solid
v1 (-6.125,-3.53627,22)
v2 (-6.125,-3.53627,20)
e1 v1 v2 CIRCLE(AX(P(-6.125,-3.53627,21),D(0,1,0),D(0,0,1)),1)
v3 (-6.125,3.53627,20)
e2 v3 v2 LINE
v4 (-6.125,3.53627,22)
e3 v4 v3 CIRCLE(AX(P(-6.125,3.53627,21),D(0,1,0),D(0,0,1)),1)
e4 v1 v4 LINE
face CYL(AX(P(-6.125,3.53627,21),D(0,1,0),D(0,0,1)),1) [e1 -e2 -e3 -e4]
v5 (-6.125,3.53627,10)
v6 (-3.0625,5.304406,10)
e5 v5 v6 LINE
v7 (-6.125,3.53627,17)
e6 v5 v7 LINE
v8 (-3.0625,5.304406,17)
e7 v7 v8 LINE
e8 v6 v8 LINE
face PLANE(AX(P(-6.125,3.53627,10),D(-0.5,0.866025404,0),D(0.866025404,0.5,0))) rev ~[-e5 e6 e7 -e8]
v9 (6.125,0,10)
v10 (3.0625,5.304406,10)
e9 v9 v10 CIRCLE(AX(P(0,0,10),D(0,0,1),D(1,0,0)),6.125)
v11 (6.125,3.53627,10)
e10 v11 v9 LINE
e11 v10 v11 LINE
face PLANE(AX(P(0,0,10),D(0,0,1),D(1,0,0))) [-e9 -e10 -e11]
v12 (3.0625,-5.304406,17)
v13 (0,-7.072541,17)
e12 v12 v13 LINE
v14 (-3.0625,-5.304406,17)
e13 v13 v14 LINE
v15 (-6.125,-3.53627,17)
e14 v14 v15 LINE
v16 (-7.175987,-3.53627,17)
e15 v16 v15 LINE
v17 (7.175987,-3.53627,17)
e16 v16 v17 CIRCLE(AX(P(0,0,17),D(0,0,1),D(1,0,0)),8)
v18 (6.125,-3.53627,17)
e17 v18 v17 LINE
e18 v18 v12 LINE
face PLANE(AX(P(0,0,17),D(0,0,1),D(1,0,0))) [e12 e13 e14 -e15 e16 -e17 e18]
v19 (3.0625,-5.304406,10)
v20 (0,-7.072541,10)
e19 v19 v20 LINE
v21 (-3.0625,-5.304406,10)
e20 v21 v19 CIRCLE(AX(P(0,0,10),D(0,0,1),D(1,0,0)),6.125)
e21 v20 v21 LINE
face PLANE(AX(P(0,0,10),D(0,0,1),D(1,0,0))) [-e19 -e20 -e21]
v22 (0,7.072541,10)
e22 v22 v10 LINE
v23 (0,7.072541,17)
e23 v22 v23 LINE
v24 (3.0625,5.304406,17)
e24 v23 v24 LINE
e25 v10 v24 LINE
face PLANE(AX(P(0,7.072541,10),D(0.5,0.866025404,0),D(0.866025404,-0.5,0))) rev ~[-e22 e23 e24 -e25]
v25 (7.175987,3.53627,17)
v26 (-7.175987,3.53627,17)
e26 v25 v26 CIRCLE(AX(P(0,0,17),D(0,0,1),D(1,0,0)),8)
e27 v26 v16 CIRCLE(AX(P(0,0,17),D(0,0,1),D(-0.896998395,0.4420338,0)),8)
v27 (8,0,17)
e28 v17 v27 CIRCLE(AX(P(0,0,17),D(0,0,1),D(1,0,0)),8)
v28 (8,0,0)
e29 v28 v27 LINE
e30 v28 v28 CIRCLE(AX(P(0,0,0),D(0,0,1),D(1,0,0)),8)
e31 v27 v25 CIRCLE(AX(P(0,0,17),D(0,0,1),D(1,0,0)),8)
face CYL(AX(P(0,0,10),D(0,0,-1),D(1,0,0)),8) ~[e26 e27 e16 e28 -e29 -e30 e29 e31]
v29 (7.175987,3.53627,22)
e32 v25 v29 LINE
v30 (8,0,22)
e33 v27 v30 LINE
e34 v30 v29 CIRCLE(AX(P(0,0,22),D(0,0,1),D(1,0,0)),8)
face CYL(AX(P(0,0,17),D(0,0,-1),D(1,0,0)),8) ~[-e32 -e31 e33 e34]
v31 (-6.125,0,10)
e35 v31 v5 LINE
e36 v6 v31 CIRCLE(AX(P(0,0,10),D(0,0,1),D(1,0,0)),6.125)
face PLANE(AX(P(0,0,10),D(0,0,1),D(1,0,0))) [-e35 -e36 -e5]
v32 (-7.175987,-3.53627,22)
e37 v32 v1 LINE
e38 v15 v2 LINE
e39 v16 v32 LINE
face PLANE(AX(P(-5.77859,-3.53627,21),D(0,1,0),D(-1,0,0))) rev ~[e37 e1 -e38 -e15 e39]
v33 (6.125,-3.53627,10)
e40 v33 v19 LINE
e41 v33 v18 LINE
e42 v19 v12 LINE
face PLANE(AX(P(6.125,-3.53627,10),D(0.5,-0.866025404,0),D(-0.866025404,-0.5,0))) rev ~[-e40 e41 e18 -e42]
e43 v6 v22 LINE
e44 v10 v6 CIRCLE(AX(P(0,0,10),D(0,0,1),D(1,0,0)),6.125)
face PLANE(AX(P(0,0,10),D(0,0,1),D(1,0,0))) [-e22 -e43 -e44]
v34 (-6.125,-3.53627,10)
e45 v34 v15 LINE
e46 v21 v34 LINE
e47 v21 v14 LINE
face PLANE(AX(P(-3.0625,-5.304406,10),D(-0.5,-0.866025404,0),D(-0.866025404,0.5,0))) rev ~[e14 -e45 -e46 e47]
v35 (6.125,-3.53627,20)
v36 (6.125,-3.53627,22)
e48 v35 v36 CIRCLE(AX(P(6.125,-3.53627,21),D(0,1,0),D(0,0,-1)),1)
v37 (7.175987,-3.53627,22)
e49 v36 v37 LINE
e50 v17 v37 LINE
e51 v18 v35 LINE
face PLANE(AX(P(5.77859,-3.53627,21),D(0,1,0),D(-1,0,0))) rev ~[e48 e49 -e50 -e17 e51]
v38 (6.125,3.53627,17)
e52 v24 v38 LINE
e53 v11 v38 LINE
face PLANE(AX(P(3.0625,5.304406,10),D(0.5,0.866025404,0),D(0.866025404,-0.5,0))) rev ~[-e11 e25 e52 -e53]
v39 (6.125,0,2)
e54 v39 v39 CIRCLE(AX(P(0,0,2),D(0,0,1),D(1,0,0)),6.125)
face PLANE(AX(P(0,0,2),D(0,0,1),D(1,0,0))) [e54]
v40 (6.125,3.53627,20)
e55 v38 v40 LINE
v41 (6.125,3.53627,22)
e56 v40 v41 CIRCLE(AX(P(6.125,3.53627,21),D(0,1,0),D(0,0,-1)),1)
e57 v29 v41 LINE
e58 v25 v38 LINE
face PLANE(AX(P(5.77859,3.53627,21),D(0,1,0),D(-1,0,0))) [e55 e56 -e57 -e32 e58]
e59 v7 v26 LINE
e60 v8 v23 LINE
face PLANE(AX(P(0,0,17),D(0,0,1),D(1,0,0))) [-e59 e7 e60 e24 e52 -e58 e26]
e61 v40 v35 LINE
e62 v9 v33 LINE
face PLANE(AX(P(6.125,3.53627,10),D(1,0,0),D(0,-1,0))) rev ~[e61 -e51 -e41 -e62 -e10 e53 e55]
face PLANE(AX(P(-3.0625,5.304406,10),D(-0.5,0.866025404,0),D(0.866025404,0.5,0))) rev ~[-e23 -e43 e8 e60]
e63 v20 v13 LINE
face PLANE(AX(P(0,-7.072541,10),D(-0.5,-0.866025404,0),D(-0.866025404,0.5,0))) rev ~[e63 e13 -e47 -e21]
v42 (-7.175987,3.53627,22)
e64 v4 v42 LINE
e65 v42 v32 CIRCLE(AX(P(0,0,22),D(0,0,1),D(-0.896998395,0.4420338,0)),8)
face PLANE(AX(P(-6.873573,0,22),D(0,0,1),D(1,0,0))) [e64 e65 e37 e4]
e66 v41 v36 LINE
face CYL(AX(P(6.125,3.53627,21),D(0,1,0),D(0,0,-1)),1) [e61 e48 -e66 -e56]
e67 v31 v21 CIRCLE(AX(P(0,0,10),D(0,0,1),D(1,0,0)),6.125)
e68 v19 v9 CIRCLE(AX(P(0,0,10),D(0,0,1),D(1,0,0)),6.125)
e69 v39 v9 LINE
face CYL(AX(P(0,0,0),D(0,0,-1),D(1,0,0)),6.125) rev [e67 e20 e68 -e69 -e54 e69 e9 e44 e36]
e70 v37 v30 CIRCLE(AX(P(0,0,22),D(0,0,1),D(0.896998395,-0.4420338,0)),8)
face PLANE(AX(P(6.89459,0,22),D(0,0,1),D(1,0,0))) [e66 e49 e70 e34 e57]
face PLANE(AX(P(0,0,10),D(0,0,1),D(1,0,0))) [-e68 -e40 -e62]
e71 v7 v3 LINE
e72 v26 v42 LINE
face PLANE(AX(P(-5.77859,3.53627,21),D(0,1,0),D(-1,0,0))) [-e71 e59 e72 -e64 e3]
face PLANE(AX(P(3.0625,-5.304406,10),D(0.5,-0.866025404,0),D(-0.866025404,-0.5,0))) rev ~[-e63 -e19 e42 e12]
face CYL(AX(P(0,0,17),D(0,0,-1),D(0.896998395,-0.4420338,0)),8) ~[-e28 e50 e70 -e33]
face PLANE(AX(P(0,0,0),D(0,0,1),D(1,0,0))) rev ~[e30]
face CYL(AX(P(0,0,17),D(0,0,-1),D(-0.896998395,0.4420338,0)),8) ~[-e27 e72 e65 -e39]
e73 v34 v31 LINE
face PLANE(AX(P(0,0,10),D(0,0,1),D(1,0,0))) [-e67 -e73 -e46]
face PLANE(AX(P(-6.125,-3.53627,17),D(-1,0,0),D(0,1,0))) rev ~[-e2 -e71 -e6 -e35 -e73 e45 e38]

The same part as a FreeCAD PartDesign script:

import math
import FreeCAD as App
import Part
import Sketcher
Q = App.Units.Quantity

doc = App.newDocument("Part")
body = doc.addObject("PartDesign::Body", "Body")

# Sketch on XY plane
sketch1 = body.newObject("Sketcher::SketchObject", "Sketch")
sketch1.AttachmentSupport = (doc.getObject("XY_Plane"), [""])
sketch1.MapMode = "FlatFace"
sketch1.addGeometry(Part.Circle(App.Vector(0, 0, 0), App.Vector(0, 0, 1), 6), False)
sketch1.addConstraint([
    Sketcher.Constraint("Coincident", 0, 3, -1, 1),
    Sketcher.Constraint("Diameter", 0, 12.25),
])
pad1 = body.newObject("PartDesign::Pad", "Pad")
pad1.Profile = sketch1
pad1.Length = 2

# Sketch on XY plane
sketch2 = body.newObject("Sketcher::SketchObject", "Sketch001")
sketch2.AttachmentSupport = (doc.getObject("XY_Plane"), [""])
sketch2.MapMode = "FlatFace"
sketch2.addGeometry([
    Part.Circle(App.Vector(0, 0, 0), App.Vector(0, 0, 1), 8),
    Part.Circle(App.Vector(0, 0, 0), App.Vector(0, 0, 1), 6),
], False)
sketch2.addConstraint([
    Sketcher.Constraint("Coincident", 0, 3, -1, 1),
    Sketcher.Constraint("Coincident", 1, 3, -1, 1),
    Sketcher.Constraint("Diameter", 0, 16.0),
    Sketcher.Constraint("Diameter", 1, 12.25),
])
pad2 = body.newObject("PartDesign::Pad", "Pad001")
pad2.Profile = sketch2
pad2.Length = 10

# Sketch on XY plane
sketch3 = body.newObject("Sketcher::SketchObject", "Sketch002")
sketch3.AttachmentSupport = (doc.getObject("XY_Plane"), [""])
sketch3.MapMode = "FlatFace"
sketch3.AttachmentOffset = App.Placement(App.Vector(0, 0, 10), App.Rotation())
sketch3.addGeometry([
    Part.Circle(App.Vector(0, 0, 0), App.Vector(0, 0, 1), 8),  # 0
    Part.LineSegment(App.Vector(0, 7.1, 0), App.Vector(3.1, 5.3, 0)),  # 1
    Part.LineSegment(App.Vector(3.1, 5.3, 0), App.Vector(6.1, 3.5, 0)),  # 2
    Part.LineSegment(App.Vector(6.1, 3.5, 0), App.Vector(6.1, -3.5, 0)),  # 3
    Part.LineSegment(App.Vector(6.1, -3.5, 0), App.Vector(3.1, -5.3, 0)),  # 4
    Part.LineSegment(App.Vector(3.1, -5.3, 0), App.Vector(0, -7.1, 0)),  # 5
    Part.LineSegment(App.Vector(0, -7.1, 0), App.Vector(-3.1, -5.3, 0)),  # 6
    Part.LineSegment(App.Vector(-3.1, -5.3, 0), App.Vector(-6.1, -3.5, 0)),  # 7
    Part.LineSegment(App.Vector(-6.1, -3.5, 0), App.Vector(-6.1, 3.5, 0)),  # 8
    Part.LineSegment(App.Vector(-6.1, 3.5, 0), App.Vector(-3.1, 5.3, 0)),  # 9
    Part.LineSegment(App.Vector(-3.1, 5.3, 0), App.Vector(0, 7.1, 0)),  # 10
], False)
sketch3.addConstraint([
    Sketcher.Constraint("Coincident", 1, 2, 2, 1),
    Sketcher.Constraint("Coincident", 2, 2, 3, 1),
    Sketcher.Constraint("Coincident", 3, 2, 4, 1),
    Sketcher.Constraint("Coincident", 4, 2, 5, 1),
    Sketcher.Constraint("Coincident", 5, 2, 6, 1),
    Sketcher.Constraint("Coincident", 6, 2, 7, 1),
    Sketcher.Constraint("Coincident", 7, 2, 8, 1),
    Sketcher.Constraint("Coincident", 8, 2, 9, 1),
    Sketcher.Constraint("Coincident", 9, 2, 10, 1),
    Sketcher.Constraint("Coincident", 10, 2, 1, 1),
    Sketcher.Constraint("Vertical", 3),
    Sketcher.Constraint("Vertical", 8),
    Sketcher.Constraint("Coincident", 0, 3, -1, 1),
    Sketcher.Constraint("Symmetric", 1, 2, 6, 2, -1, 1),
    Sketcher.Constraint("Symmetric", 2, 2, 7, 2, -1, 1),
    Sketcher.Constraint("Symmetric", 4, 2, 9, 2, -1, 1),
    Sketcher.Constraint("Symmetric", 5, 2, 10, 2, -1, 1),
    Sketcher.Constraint("Symmetric", 4, 2, 6, 2, -2),
    Sketcher.Constraint("PointOnObject", 5, 2, -2),
    Sketcher.Constraint("Parallel", 1, 2),
    Sketcher.Constraint("Parallel", 4, 5),
    Sketcher.Constraint("Parallel", 5, 9),
    Sketcher.Constraint("Equal", 1, 2),
    Sketcher.Constraint("Diameter", 0, 16.0),
    Sketcher.Constraint("Angle", 1, Q("-30 deg")),
    Sketcher.Constraint("DistanceX", 7, 2, 3, 2, 12.25),
    Sketcher.Constraint("DistanceY", 3, 2, 3, 1, 7.072541),
])
pad3 = body.newObject("PartDesign::Pad", "Pad002")
pad3.Profile = sketch3
pad3.Length = 7

# Sketch on XY plane
sketch4 = body.newObject("Sketcher::SketchObject", "Sketch003")
sketch4.AttachmentSupport = (doc.getObject("XY_Plane"), [""])
sketch4.MapMode = "FlatFace"
sketch4.AttachmentOffset = App.Placement(App.Vector(0, 0, 17), App.Rotation())
sketch4.addGeometry([
    Part.LineSegment(App.Vector(-6.1, -3.5, 0), App.Vector(-6.1, 3.5, 0)),  # 0
    Part.LineSegment(App.Vector(-6.1, 3.5, 0), App.Vector(-7.2, 3.5, 0)),  # 1
    Part.ArcOfCircle(Part.Circle(App.Vector(0, 0, 0), App.Vector(0, 0, 1), 8), math.radians(154), math.radians(206)),  # 2
    Part.LineSegment(App.Vector(-7.2, -3.5, 0), App.Vector(-6.1, -3.5, 0)),  # 3
    Part.ArcOfCircle(Part.Circle(App.Vector(0, 0, 0), App.Vector(0, 0, 1), 8), math.radians(0), math.radians(26)),  # 4
    Part.LineSegment(App.Vector(7.2, 3.5, 0), App.Vector(6.1, 3.5, 0)),  # 5
    Part.LineSegment(App.Vector(6.1, 3.5, 0), App.Vector(6.1, -3.5, 0)),  # 6
    Part.LineSegment(App.Vector(6.1, -3.5, 0), App.Vector(7.2, -3.5, 0)),  # 7
    Part.ArcOfCircle(Part.Circle(App.Vector(0, 0, 0), App.Vector(0, 0, 1), 8), math.radians(-26), math.radians(0)),  # 8
], False)
sketch4.addConstraint([
    Sketcher.Constraint("Coincident", 0, 2, 1, 1),
    Sketcher.Constraint("Coincident", 1, 2, 2, 1),
    Sketcher.Constraint("Coincident", 2, 2, 3, 1),
    Sketcher.Constraint("Coincident", 3, 2, 0, 1),
    Sketcher.Constraint("Coincident", 4, 2, 5, 1),
    Sketcher.Constraint("Coincident", 5, 2, 6, 1),
    Sketcher.Constraint("Coincident", 6, 2, 7, 1),
    Sketcher.Constraint("Coincident", 7, 2, 8, 1),
    Sketcher.Constraint("Tangent", 8, 2, 4, 1),
    Sketcher.Constraint("Vertical", 0),
    Sketcher.Constraint("Horizontal", 1),
    Sketcher.Constraint("Horizontal", 3),
    Sketcher.Constraint("Horizontal", 5),
    Sketcher.Constraint("Vertical", 6),
    Sketcher.Constraint("Horizontal", 7),
    Sketcher.Constraint("Coincident", 2, 3, -1, 1),
    Sketcher.Constraint("Coincident", 4, 3, -1, 1),
    Sketcher.Constraint("Equal", 2, 4),
    Sketcher.Constraint("Equal", 4, 8),
    Sketcher.Constraint("Symmetric", 3, 2, 5, 2, -1, 1),
    Sketcher.Constraint("PointOnObject", 8, 2, -1),
    Sketcher.Constraint("Horizontal", 1, 2, 4, 2),
    Sketcher.Constraint("Horizontal", 3, 2, 6, 2),
    Sketcher.Constraint("Radius", 2, 8.0),
    Sketcher.Constraint("DistanceX", 0, 2, 5, 2, 12.25),
    Sketcher.Constraint("DistanceY", 0, 1, 0, 2, 7.072541),
])
pad4 = body.newObject("PartDesign::Pad", "Pad003")
pad4.Profile = sketch4
pad4.Length = 5

# Sketch on XZ plane
sketch5 = body.newObject("Sketcher::SketchObject", "Sketch004")
sketch5.AttachmentSupport = (doc.getObject("XZ_Plane"), [""])
sketch5.MapMode = "FlatFace"
sketch5.AttachmentOffset = App.Placement(App.Vector(0, 0, -3.53627), App.Rotation())
sketch5.addGeometry([
    Part.LineSegment(App.Vector(-6.1, 20, 0), App.Vector(-6.1, 22, 0)),
    Part.ArcOfCircle(Part.Circle(App.Vector(-6.1, 21, 0), App.Vector(0, 0, 1), 1), math.radians(-90), math.radians(90)),
], False)
sketch5.addConstraint([
    Sketcher.Constraint("Coincident", 0, 1, 1, 1),
    Sketcher.Constraint("Coincident", 1, 2, 0, 2),
    Sketcher.Constraint("Vertical", 0),
    Sketcher.Constraint("Vertical", 1, 3, 0, 1),
    Sketcher.Constraint("Radius", 1, 1.0),
    Sketcher.Constraint("DistanceY", -1, 1, 1, 3, 21.0),
    Sketcher.Constraint("DistanceX", 1, 3, -1, 1, 6.125),
])
pad5 = body.newObject("PartDesign::Pad", "Pad004")
pad5.Profile = sketch5
pad5.Length = 7.072541

# Sketch on XZ plane
sketch6 = body.newObject("Sketcher::SketchObject", "Sketch005")
sketch6.AttachmentSupport = (doc.getObject("XZ_Plane"), [""])
sketch6.MapMode = "FlatFace"
sketch6.AttachmentOffset = App.Placement(App.Vector(0, 0, -3.53627), App.Rotation())
sketch6.addGeometry([
    Part.LineSegment(App.Vector(6.1, 22, 0), App.Vector(6.1, 20, 0)),
    Part.ArcOfCircle(Part.Circle(App.Vector(6.1, 21, 0), App.Vector(0, 0, 1), 1), math.radians(90), math.radians(270)),
], False)
sketch6.addConstraint([
    Sketcher.Constraint("Coincident", 0, 1, 1, 1),
    Sketcher.Constraint("Coincident", 1, 2, 0, 2),
    Sketcher.Constraint("Vertical", 0),
    Sketcher.Constraint("Vertical", 1, 3, 0, 1),
    Sketcher.Constraint("Radius", 1, 1.0),
    Sketcher.Constraint("DistanceY", -1, 1, 1, 3, 21.0),
    Sketcher.Constraint("DistanceX", -1, 1, 1, 3, 6.125),
])
pad6 = body.newObject("PartDesign::Pad", "Pad005")
pad6.Profile = sketch6
pad6.Length = 7.072541

doc.recompute()
